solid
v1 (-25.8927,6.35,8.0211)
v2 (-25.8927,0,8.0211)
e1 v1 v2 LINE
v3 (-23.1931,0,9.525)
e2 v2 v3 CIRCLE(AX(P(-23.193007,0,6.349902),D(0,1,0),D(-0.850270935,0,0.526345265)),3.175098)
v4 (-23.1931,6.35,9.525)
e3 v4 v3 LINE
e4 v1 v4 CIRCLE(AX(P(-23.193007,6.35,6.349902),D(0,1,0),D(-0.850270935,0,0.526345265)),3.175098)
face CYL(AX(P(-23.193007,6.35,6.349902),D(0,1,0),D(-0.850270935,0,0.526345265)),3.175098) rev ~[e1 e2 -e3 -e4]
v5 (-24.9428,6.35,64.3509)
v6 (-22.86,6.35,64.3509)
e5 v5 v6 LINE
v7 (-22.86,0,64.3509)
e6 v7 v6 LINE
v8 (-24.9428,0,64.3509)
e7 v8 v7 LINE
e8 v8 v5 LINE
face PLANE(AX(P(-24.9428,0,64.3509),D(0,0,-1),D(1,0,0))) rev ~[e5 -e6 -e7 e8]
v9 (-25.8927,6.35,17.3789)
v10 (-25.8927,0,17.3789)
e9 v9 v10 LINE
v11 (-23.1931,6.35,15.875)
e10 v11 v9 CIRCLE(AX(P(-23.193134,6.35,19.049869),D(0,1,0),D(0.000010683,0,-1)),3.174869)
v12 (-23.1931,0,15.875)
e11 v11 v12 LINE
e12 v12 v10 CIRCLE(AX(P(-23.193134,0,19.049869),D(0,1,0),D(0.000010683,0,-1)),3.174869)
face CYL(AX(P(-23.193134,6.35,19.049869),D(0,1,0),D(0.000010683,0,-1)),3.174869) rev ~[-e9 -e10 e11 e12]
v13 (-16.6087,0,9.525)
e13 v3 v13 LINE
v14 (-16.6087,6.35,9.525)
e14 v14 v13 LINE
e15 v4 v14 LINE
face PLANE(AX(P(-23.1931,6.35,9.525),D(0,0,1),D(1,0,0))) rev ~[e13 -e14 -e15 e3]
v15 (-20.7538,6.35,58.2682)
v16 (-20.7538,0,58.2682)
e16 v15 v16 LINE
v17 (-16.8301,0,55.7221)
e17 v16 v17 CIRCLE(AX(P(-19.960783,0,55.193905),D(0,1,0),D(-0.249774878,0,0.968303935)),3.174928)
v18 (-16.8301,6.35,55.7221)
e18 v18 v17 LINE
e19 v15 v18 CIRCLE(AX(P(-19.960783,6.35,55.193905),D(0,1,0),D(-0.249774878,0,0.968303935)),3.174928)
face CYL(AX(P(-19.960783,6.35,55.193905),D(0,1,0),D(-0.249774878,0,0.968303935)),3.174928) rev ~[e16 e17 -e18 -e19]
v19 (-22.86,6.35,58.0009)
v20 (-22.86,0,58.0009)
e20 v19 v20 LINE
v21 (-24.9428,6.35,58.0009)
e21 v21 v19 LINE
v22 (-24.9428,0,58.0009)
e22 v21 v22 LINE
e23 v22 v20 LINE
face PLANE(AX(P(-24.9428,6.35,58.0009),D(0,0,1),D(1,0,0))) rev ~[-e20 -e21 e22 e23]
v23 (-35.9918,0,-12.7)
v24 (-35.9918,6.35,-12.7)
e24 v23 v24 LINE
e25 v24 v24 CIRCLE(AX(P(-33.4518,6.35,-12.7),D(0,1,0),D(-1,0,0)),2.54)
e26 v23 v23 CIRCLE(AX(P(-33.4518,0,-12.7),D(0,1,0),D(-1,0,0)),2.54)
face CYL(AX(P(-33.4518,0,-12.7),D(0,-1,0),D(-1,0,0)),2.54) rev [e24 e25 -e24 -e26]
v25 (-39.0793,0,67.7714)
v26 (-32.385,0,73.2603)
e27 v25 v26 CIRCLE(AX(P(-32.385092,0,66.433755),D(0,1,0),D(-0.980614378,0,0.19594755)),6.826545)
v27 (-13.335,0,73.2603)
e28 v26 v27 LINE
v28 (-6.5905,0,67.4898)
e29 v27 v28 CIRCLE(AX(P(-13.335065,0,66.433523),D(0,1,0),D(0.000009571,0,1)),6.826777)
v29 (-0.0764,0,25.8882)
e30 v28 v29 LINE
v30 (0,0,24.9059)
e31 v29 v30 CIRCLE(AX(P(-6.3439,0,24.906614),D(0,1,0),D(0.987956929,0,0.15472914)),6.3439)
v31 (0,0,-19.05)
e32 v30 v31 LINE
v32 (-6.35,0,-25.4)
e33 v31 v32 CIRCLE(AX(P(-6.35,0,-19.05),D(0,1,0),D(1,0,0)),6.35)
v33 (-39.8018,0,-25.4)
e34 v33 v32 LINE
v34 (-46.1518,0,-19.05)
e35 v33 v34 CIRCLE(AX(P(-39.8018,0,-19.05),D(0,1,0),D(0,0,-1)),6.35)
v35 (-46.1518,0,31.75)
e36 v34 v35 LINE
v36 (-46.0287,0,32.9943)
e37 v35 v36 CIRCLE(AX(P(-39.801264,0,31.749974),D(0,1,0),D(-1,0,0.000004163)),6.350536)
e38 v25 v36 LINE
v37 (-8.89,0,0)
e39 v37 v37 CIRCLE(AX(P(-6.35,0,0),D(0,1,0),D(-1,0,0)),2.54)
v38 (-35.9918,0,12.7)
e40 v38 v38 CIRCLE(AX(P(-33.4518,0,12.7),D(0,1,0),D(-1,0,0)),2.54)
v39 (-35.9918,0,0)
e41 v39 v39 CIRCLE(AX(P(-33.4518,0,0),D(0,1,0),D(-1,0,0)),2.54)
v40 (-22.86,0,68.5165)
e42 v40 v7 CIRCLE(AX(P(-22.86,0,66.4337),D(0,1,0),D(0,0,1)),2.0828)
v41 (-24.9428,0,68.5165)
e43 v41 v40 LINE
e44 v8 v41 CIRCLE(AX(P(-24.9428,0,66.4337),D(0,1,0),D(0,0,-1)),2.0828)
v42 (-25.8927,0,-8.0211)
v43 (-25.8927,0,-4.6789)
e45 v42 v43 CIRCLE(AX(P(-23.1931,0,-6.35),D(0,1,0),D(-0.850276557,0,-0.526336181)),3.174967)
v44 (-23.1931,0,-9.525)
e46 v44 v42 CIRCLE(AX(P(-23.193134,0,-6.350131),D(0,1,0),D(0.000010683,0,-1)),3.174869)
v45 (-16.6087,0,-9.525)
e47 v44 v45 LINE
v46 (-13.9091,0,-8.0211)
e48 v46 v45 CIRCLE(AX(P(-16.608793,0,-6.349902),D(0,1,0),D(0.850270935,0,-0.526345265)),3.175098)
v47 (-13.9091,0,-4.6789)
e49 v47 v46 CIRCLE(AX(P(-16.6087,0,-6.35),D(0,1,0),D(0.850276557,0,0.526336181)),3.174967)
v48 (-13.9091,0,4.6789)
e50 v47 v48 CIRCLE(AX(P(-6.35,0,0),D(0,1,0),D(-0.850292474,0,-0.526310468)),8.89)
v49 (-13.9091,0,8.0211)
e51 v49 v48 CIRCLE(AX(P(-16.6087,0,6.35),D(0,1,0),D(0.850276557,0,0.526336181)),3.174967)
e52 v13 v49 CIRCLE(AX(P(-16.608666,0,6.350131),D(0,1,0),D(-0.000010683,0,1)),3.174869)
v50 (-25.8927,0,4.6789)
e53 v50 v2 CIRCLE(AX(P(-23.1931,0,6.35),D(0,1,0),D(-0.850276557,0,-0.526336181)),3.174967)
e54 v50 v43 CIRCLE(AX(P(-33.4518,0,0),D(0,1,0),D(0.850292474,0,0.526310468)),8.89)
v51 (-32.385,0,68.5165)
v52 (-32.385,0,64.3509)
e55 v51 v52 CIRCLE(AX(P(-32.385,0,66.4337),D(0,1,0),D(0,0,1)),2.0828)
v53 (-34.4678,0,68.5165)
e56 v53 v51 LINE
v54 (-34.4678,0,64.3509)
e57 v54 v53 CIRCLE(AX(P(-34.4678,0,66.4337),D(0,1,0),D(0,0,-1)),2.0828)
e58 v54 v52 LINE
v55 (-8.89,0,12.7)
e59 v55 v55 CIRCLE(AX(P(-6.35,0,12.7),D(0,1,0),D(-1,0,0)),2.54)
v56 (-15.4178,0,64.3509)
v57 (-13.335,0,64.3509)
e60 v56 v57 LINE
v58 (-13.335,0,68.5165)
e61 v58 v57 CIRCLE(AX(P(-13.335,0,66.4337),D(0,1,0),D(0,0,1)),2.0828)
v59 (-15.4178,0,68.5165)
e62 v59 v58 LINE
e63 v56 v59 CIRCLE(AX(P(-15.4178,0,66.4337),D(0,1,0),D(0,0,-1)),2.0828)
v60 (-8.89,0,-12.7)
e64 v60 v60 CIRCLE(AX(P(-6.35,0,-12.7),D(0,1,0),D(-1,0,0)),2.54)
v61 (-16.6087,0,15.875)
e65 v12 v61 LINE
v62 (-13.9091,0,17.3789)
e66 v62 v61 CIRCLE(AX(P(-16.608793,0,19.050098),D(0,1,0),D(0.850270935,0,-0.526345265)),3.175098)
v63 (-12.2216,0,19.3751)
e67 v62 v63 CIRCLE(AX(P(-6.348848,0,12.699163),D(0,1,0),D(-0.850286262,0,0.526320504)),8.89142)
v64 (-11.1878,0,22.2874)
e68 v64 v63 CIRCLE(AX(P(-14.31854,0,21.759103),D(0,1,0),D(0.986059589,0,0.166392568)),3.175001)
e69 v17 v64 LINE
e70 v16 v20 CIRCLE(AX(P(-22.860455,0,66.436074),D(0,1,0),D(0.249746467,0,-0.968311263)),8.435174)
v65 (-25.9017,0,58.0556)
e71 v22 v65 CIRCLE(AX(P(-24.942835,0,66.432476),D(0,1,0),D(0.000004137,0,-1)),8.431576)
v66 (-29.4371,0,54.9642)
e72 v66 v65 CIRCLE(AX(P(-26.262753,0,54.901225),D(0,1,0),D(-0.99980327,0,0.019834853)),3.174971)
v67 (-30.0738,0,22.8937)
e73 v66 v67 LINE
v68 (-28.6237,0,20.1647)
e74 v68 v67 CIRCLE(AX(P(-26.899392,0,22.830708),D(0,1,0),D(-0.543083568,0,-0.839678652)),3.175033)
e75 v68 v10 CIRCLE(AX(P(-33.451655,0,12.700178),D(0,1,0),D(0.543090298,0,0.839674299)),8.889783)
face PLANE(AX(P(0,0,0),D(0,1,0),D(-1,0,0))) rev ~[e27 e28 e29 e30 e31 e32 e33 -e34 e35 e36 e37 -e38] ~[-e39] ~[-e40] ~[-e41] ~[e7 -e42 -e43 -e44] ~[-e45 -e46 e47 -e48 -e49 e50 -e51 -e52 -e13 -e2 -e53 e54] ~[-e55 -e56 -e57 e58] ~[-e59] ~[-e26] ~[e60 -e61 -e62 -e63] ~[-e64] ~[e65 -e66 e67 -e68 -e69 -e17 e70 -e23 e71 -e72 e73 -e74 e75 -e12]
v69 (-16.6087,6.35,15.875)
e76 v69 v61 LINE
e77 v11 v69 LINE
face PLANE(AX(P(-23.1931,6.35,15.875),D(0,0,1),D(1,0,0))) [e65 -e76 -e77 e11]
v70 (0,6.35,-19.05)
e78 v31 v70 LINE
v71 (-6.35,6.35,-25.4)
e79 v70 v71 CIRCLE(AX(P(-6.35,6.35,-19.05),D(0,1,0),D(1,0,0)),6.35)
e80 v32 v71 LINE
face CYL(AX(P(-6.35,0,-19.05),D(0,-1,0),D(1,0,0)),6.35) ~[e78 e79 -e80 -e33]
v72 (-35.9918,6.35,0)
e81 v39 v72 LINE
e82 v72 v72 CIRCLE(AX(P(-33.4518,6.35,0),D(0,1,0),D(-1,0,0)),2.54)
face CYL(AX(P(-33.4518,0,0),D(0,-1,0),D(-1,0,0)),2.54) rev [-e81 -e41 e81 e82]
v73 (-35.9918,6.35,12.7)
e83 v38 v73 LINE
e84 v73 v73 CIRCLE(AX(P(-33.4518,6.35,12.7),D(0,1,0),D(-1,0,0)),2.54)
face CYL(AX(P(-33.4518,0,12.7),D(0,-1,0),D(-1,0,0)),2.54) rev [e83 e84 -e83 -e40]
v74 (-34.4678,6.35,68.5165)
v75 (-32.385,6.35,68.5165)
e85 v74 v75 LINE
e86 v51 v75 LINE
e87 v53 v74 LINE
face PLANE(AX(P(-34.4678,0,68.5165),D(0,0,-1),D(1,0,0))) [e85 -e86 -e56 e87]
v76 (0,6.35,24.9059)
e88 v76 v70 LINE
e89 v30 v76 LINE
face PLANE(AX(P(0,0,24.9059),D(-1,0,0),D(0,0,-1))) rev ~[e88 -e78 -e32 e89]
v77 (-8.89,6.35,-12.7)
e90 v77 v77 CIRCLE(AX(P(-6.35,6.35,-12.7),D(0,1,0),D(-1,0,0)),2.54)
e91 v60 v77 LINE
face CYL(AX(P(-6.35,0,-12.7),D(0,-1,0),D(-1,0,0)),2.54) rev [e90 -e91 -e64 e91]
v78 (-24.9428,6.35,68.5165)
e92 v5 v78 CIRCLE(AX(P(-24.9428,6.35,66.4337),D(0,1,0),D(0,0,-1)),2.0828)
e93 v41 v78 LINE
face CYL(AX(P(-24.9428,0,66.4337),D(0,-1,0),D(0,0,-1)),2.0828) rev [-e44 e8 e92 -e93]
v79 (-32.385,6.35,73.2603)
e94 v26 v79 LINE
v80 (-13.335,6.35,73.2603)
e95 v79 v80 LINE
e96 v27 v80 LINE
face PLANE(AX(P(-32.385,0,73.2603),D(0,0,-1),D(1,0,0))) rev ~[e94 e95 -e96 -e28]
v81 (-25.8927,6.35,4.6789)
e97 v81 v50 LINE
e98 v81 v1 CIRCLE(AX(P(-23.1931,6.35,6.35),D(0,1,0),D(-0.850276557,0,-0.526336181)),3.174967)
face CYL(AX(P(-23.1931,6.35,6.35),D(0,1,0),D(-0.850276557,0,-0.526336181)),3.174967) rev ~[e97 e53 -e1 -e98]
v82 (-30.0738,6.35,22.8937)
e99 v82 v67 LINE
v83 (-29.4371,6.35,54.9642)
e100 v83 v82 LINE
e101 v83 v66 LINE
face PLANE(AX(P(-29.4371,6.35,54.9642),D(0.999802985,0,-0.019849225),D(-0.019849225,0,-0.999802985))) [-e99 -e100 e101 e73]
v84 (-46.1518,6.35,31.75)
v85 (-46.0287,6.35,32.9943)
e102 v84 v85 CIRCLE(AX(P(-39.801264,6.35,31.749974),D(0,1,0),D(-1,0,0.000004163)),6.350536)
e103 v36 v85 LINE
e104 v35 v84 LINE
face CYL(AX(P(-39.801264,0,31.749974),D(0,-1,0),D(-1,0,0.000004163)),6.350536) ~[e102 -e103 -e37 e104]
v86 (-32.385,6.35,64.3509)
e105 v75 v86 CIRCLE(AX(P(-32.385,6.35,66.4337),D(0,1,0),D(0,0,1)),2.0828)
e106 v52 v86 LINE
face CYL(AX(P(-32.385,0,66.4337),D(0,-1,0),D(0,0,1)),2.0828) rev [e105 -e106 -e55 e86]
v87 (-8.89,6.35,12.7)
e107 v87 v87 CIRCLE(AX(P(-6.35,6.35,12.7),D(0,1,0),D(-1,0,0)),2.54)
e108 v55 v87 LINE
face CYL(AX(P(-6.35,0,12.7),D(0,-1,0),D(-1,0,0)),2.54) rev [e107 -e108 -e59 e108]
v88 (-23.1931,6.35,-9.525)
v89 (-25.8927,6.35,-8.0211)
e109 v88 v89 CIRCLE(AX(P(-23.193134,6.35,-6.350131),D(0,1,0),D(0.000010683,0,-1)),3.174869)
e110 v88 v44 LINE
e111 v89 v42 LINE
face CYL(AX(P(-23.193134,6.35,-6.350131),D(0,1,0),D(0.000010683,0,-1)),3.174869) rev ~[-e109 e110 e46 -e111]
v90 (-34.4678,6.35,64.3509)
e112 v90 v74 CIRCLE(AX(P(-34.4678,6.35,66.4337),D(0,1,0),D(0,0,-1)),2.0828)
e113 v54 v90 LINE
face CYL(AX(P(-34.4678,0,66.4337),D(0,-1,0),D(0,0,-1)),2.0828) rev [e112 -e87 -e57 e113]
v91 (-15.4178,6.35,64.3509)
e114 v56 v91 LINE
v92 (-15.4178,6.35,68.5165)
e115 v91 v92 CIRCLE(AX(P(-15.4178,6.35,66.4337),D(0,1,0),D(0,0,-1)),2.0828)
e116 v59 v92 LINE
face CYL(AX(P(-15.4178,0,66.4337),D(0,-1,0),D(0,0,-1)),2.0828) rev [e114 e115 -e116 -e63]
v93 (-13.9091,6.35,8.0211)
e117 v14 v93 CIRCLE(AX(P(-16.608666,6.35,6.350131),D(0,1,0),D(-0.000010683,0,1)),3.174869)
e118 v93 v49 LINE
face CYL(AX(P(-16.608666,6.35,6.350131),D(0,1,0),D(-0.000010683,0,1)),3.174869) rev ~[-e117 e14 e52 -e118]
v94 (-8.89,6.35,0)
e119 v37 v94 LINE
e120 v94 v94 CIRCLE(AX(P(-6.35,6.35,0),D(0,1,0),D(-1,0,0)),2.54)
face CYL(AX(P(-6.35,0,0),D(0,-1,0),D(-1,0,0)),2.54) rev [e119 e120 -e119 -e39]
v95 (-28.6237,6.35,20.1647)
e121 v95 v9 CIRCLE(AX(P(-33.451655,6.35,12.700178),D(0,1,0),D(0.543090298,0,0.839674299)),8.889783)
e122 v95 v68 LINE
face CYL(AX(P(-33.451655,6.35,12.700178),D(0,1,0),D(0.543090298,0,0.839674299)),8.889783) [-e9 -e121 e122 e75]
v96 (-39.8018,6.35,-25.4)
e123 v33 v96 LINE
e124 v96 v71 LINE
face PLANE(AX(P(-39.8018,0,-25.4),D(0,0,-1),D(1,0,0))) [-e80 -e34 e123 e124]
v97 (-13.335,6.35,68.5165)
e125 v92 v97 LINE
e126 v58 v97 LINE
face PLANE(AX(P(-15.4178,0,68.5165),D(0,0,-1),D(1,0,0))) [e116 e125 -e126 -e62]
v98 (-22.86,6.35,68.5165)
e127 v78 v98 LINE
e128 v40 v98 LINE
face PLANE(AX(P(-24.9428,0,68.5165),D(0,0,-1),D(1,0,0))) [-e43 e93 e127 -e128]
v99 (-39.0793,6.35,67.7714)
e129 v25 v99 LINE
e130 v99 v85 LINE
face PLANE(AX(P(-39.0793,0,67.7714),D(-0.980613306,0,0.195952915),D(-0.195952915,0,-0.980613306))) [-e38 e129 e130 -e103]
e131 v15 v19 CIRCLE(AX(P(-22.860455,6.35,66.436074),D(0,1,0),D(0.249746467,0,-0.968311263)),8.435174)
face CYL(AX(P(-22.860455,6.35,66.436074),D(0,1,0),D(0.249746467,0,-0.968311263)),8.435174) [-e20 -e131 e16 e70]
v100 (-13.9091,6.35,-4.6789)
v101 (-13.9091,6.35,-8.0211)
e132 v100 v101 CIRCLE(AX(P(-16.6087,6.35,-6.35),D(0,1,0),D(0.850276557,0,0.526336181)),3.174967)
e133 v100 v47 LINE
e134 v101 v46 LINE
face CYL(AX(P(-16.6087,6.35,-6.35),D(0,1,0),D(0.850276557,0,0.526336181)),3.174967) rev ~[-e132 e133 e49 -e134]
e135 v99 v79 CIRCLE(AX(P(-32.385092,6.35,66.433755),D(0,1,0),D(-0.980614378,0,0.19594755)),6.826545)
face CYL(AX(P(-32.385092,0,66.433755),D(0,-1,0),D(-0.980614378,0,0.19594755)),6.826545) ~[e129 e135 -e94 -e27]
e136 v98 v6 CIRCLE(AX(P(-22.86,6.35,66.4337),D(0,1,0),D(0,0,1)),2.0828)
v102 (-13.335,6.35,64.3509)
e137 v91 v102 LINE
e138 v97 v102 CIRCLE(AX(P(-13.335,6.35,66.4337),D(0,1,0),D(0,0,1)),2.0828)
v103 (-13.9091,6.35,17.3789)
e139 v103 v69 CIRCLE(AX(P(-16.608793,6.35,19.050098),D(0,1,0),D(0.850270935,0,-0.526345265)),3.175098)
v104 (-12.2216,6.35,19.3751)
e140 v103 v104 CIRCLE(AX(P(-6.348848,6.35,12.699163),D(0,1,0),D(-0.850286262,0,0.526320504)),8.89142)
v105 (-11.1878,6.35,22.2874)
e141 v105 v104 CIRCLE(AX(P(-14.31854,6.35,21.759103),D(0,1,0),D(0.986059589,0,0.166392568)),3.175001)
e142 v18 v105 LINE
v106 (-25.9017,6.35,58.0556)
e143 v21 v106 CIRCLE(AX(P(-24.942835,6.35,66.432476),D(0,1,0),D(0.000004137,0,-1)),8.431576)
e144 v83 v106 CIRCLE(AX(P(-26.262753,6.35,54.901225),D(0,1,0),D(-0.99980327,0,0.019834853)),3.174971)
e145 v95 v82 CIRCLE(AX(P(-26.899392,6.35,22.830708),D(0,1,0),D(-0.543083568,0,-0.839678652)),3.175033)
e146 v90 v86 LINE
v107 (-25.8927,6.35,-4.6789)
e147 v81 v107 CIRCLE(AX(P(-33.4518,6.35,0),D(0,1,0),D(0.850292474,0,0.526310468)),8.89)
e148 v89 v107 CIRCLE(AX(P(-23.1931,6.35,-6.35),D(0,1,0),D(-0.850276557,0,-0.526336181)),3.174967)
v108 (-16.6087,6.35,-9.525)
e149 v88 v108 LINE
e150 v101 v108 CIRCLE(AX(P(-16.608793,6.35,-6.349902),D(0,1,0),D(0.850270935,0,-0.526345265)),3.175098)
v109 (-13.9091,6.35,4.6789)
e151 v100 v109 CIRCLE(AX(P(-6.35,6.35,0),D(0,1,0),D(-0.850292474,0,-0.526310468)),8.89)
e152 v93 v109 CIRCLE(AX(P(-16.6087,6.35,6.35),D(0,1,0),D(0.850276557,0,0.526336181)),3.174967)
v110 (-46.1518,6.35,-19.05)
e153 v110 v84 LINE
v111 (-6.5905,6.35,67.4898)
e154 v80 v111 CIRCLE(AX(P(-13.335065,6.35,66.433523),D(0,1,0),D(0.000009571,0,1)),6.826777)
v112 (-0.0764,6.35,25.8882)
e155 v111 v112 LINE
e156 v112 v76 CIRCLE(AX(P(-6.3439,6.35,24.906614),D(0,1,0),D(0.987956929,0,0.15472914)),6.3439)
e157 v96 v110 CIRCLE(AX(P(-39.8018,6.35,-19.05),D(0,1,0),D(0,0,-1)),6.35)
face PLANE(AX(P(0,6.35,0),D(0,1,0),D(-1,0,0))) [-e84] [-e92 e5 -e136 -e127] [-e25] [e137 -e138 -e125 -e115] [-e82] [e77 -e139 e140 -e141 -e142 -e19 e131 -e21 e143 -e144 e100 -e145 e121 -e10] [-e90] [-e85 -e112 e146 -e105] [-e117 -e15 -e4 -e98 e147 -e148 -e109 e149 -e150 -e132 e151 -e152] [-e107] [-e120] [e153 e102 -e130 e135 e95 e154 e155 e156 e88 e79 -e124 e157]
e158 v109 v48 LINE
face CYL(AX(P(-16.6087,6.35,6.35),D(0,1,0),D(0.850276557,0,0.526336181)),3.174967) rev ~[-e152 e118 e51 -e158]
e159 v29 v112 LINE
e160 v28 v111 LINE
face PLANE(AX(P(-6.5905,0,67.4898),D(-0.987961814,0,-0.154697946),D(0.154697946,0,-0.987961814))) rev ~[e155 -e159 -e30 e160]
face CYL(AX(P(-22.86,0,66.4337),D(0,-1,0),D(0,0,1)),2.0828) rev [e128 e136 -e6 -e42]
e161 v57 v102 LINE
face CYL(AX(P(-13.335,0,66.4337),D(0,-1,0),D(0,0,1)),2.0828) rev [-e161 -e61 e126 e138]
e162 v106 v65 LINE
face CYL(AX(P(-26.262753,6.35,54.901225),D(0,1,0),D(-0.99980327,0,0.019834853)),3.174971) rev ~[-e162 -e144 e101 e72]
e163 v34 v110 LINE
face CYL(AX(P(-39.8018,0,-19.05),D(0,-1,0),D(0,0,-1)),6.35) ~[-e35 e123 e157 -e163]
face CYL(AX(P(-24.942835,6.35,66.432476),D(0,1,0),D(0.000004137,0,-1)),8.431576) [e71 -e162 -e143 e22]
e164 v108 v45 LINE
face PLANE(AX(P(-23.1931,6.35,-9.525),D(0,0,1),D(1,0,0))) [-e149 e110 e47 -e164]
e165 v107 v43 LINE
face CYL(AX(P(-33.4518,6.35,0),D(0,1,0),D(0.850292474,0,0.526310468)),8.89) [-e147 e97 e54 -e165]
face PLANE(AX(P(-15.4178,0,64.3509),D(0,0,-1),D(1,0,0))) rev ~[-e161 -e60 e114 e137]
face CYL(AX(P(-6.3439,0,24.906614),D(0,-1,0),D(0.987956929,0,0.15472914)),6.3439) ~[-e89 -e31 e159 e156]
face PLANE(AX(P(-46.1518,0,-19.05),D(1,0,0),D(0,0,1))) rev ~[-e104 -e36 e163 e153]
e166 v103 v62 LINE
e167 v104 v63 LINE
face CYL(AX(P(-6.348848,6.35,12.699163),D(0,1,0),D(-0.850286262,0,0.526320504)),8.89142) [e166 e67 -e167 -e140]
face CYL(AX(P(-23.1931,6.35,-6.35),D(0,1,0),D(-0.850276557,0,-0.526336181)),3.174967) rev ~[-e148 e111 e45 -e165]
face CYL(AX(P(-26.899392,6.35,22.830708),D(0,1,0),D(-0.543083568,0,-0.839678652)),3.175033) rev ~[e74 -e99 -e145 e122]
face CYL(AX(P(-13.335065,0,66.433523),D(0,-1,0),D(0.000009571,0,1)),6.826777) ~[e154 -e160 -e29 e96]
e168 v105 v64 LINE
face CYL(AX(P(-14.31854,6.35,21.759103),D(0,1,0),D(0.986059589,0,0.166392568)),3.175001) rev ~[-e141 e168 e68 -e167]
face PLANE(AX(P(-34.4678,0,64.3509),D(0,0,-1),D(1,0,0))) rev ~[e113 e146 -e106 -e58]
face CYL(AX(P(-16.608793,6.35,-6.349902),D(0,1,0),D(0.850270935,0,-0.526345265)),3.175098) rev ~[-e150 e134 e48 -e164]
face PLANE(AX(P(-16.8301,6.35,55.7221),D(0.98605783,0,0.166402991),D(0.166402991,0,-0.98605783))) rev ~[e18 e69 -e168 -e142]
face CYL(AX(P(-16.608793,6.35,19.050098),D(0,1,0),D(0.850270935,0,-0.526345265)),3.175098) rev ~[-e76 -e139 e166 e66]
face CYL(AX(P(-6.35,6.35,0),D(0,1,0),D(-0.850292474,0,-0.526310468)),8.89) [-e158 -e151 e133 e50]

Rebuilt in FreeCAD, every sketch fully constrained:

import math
import FreeCAD as App
import Part
import Sketcher
Q = App.Units.Quantity

doc = App.newDocument("Part")
body = doc.addObject("PartDesign::Body", "Body")

# Sketch on XZ plane
sketch1 = doc.addObject("Sketcher::SketchObject", "Sketch")
body.addObject(sketch1)
sketch1.AttachmentSupport = (doc.XZ_Plane, [""])
sketch1.MapMode = "FlatFace"
sketch1.addGeometry([
    Part.ArcOfCircle(Part.Circle(App.Vector(-32.385, 66.4337, 0), App.Vector(0, 0, 1), 6.8266), math.radians(90), math.radians(168.699614)),  # 0
    Part.LineSegment(App.Vector(-32.385, 73.2603, 0), App.Vector(-13.335, 73.2603, 0)),  # 1
    Part.ArcOfCircle(Part.Circle(App.Vector(-13.335, 66.4337, 0), App.Vector(0, 0, 1), 6.8266), math.radians(8.899498), math.radians(90)),  # 2
    Part.LineSegment(App.Vector(-6.5905, 67.4898, 0), App.Vector(-0.0764, 25.8882, 0)),  # 3
    Part.ArcOfCircle(Part.Circle(App.Vector(-6.3439, 24.906614, 0), App.Vector(0, 0, 1), 6.3439), math.radians(-0.006447), math.radians(8.901088)),  # 4
    Part.LineSegment(App.Vector(0, 24.9059, 0), App.Vector(0, -19.05, 0)),  # 5
    Part.ArcOfCircle(Part.Circle(App.Vector(-6.35, -19.05, 0), App.Vector(0, 0, 1), 6.35), math.radians(-90), math.radians(0)),  # 6
    Part.LineSegment(App.Vector(-6.35, -25.4, 0), App.Vector(-39.8018, -25.4, 0)),  # 7
    Part.ArcOfCircle(Part.Circle(App.Vector(-39.8018, -19.05, 0), App.Vector(0, 0, 1), 6.35), math.radians(180), math.radians(270)),  # 8
    Part.LineSegment(App.Vector(-46.1518, -19.05, 0), App.Vector(-46.1518, 31.75, 0)),  # 9
    Part.ArcOfCircle(Part.Circle(App.Vector(-39.8018, 31.75, 0), App.Vector(0, 0, 1), 6.35), math.radians(168.699623), math.radians(180)),  # 10
    Part.LineSegment(App.Vector(-46.0287, 32.9943, 0), App.Vector(-39.0793, 67.7714, 0)),  # 11
    Part.Circle(App.Vector(-6.35, -12.7, 0), App.Vector(0, 0, 1), 2.54),  # 12
    Part.Circle(App.Vector(-6.35, 0, 0), App.Vector(0, 0, 1), 2.54),  # 13
    Part.Circle(App.Vector(-6.35, 12.7, 0), App.Vector(0, 0, 1), 2.54),  # 14
    Part.Circle(App.Vector(-33.4518, -12.7, 0), App.Vector(0, 0, 1), 2.54),  # 15
    Part.Circle(App.Vector(-33.4518, 0, 0), App.Vector(0, 0, 1), 2.54),  # 16
    Part.Circle(App.Vector(-33.4518, 12.7, 0), App.Vector(0, 0, 1), 2.54),  # 17
    Part.ArcOfCircle(Part.Circle(App.Vector(-15.4178, 66.4337, 0), App.Vector(0, 0, 1), 2.0828), math.radians(90), math.radians(270)),  # 18
    Part.LineSegment(App.Vector(-15.4178, 64.3509, 0), App.Vector(-13.335, 64.3509, 0)),  # 19
    Part.ArcOfCircle(Part.Circle(App.Vector(-13.335, 66.4337, 0), App.Vector(0, 0, 1), 2.0828), math.radians(-90), math.radians(90)),  # 20
    Part.LineSegment(App.Vector(-13.335, 68.5165, 0), App.Vector(-15.4178, 68.5165, 0)),  # 21
    Part.ArcOfCircle(Part.Circle(App.Vector(-24.9428, 66.4337, 0), App.Vector(0, 0, 1), 2.0828), math.radians(90), math.radians(270)),  # 22
    Part.LineSegment(App.Vector(-24.9428, 64.3509, 0), App.Vector(-22.86, 64.3509, 0)),  # 23
    Part.ArcOfCircle(Part.Circle(App.Vector(-22.86, 66.4337, 0), App.Vector(0, 0, 1), 2.0828), math.radians(-90), math.radians(90)),  # 24
    Part.LineSegment(App.Vector(-22.86, 68.5165, 0), App.Vector(-24.9428, 68.5165, 0)),  # 25
    Part.ArcOfCircle(Part.Circle(App.Vector(-34.4678, 66.4337, 0), App.Vector(0, 0, 1), 2.0828), math.radians(90), math.radians(270)),  # 26
    Part.LineSegment(App.Vector(-34.4678, 64.3509, 0), App.Vector(-32.385, 64.3509, 0)),  # 27
    Part.ArcOfCircle(Part.Circle(App.Vector(-32.385, 66.4337, 0), App.Vector(0, 0, 1), 2.0828), math.radians(-90), math.radians(90)),  # 28
    Part.LineSegment(App.Vector(-32.385, 68.5165, 0), App.Vector(-34.4678, 68.5165, 0)),  # 29
], False)
sketch1.addConstraint([
    Sketcher.Constraint("Tangent", 0, 1, 1, 1),
    Sketcher.Constraint("Tangent", 1, 2, 2, 2),
    Sketcher.Constraint("Tangent", 2, 1, 3, 1),
    Sketcher.Constraint("Tangent", 3, 2, 4, 2),
    Sketcher.Constraint("Tangent", 4, 1, 5, 1),
    Sketcher.Constraint("Tangent", 5, 2, 6, 2),
    Sketcher.Constraint("Tangent", 6, 1, 7, 1),
    Sketcher.Constraint("Tangent", 7, 2, 8, 2),
    Sketcher.Constraint("Tangent", 8, 1, 9, 1),
    Sketcher.Constraint("Tangent", 9, 2, 10, 2),
    Sketcher.Constraint("Tangent", 10, 1, 11, 1),
    Sketcher.Constraint("Tangent", 11, 2, 0, 2),
    Sketcher.Constraint("Tangent", 18, 2, 19, 1),
    Sketcher.Constraint("Tangent", 19, 2, 20, 1),
    Sketcher.Constraint("Tangent", 20, 2, 21, 1),
    Sketcher.Constraint("Tangent", 21, 2, 18, 1),
    Sketcher.Constraint("Tangent", 22, 2, 23, 1),
    Sketcher.Constraint("Tangent", 23, 2, 24, 1),
    Sketcher.Constraint("Tangent", 24, 2, 25, 1),
    Sketcher.Constraint("Tangent", 25, 2, 22, 1),
    Sketcher.Constraint("Tangent", 26, 2, 27, 1),
    Sketcher.Constraint("Tangent", 27, 2, 28, 1),
    Sketcher.Constraint("Tangent", 28, 2, 29, 1),
    Sketcher.Constraint("Tangent", 29, 2, 26, 1),
    Sketcher.Constraint("Horizontal", 1),
    Sketcher.Constraint("Vertical", 5),
    Sketcher.Constraint("Horizontal", 7),
    Sketcher.Constraint("Vertical", 9),
    Sketcher.Constraint("Horizontal", 19),
    Sketcher.Constraint("Horizontal", 21),
    Sketcher.Constraint("Horizontal", 23),
    Sketcher.Constraint("Horizontal", 25),
    Sketcher.Constraint("Horizontal", 27),
    Sketcher.Constraint("Horizontal", 29),
    Sketcher.Constraint("Coincident", 20, 3, 2, 3),
    Sketcher.Constraint("Coincident", 28, 3, 0, 3),
    Sketcher.Constraint("Equal", 0, 2),
    Sketcher.Constraint("Equal", 6, 8),
    Sketcher.Constraint("Equal", 8, 10),
    Sketcher.Constraint("Equal", 12, 13),
    Sketcher.Constraint("Equal", 13, 14),
    Sketcher.Constraint("Equal", 14, 15),
    Sketcher.Constraint("Equal", 15, 16),
    Sketcher.Constraint("Equal", 16, 17),
    Sketcher.Constraint("Equal", 20, 22),
    Sketcher.Constraint("Equal", 24, 26),
    Sketcher.Constraint("Symmetric", 12, 3, 14, 3, -1),
    Sketcher.Constraint("Symmetric", 15, 3, 17, 3, -1),
    Sketcher.Constraint("PointOnObject", 13, 3, -1),
    Sketcher.Constraint("PointOnObject", 16, 3, -1),
    Sketcher.Constraint("PointOnObject", 4, 1, -2),
    Sketcher.Constraint("Horizontal", 12, 3, 15, 3),
    Sketcher.Constraint("Horizontal", 20, 3, 22, 3),
    Sketcher.Constraint("Vertical", 6, 3, 12, 3),
    Sketcher.Constraint("Vertical", 12, 3, 13, 3),
    Sketcher.Constraint("Vertical", 15, 3, 16, 3),
    Sketcher.Constraint("Equal", 21, 23),
    Sketcher.Constraint("Equal", 25, 27),
    Sketcher.Constraint("Diameter", 12, Q("0.2 in")),
    Sketcher.Constraint("DistanceY", 9, 1, 9, 2, Q("2 in")),
    Sketcher.Constraint("Radius", 6, Q("0.25 in")),
    Sketcher.Constraint("DistanceY", 6, 1, -1, 1, Q("1 in")),
    Sketcher.Constraint("Radius", 18, Q("0.082 in")),
    Sketcher.Constraint("DistanceY", 12, 3, 14, 3, Q("1 in")),
    Sketcher.Constraint("DistanceX", 8, 1, 15, 3, Q("0.5 in")),
    Sketcher.Constraint("DistanceX", 19, 1, 19, 2, Q("0.082 in")),
    Sketcher.Constraint("Radius", 0, 6.8266),
    Sketcher.Constraint("DistanceX", 2, 3, -1, 1, Q("0.525 in")),
    Sketcher.Constraint("DistanceX", 15, 3, 12, 3, Q("1.067 in")),
    Sketcher.Constraint("DistanceX", 22, 3, 18, 3, Q("0.375 in")),
    Sketcher.Constraint("DistanceX", 0, 3, 24, 3, Q("0.375 in")),
    Sketcher.Constraint("Angle", 3, Q("-81.1007 deg")),
    Sketcher.Constraint("Angle", 11, Q("78.6996 deg")),
    Sketcher.Constraint("Radius", 4, 6.344),
])
pad1 = doc.addObject("PartDesign::Pad", "Pad")
body.addObject(pad1)
pad1.Profile = sketch1
pad1.Length = Q("0.25 in")
pad1.Reversed = True

# Sketch on XZ plane
sketch2 = doc.addObject("Sketcher::SketchObject", "Sketch001")
body.addObject(sketch2)
sketch2.AttachmentSupport = (doc.XZ_Plane, [""])
sketch2.MapMode = "FlatFace"
sketch2.AttachmentOffset = App.Placement(App.Vector(0, 0, -0.25 * 25.4), App.Rotation())
sketch2.addGeometry([
    Part.LineSegment(App.Vector(-30.0738, 22.8937, 0), App.Vector(-29.4371, 54.9642, 0)),  # 0
    Part.ArcOfCircle(Part.Circle(App.Vector(-26.2627, 54.9012, 0), App.Vector(0, 0, 1), 3.175025), math.radians(83.471285), math.radians(178.863042)),  # 1
    Part.ArcOfCircle(Part.Circle(App.Vector(-24.942835, 66.432476, 0), App.Vector(0, 0, 1), 8.431576), math.radians(-96.529982), math.radians(-89.999763)),  # 2
    Part.LineSegment(App.Vector(-24.9428, 58.0009, 0), App.Vector(-22.86, 58.0009, 0)),  # 3
    Part.ArcOfCircle(Part.Circle(App.Vector(-22.860455, 66.436074, 0), App.Vector(0, 0, 1), 8.435174), math.radians(-89.99691), math.radians(-75.53749)),  # 4
    Part.ArcOfCircle(Part.Circle(App.Vector(-19.9608, 55.1938, 0), App.Vector(0, 0, 1), 3.175025), math.radians(9.578323), math.radians(104.463418)),  # 5
    Part.LineSegment(App.Vector(-16.8301, 55.7221, 0), App.Vector(-11.1878, 22.2874, 0)),  # 6
    Part.ArcOfCircle(Part.Circle(App.Vector(-14.3185, 21.7591, 0), App.Vector(0, 0, 1), 3.174962), math.radians(-48.666041), math.radians(9.578323)),  # 7
    Part.ArcOfCircle(Part.Circle(App.Vector(-6.348848, 12.699163, 0), App.Vector(0, 0, 1), 8.89142), math.radians(131.337754), math.radians(148.242818)),  # 8
    Part.ArcOfCircle(Part.Circle(App.Vector(-16.6087, 19.05, 0), App.Vector(0, 0, 1), 3.174967), math.radians(-90), math.radians(-31.758238)),  # 9
    Part.LineSegment(App.Vector(-16.6087, 15.875, 0), App.Vector(-23.1931, 15.875, 0)),  # 10
    Part.ArcOfCircle(Part.Circle(App.Vector(-23.1931, 19.05, 0), App.Vector(0, 0, 1), 3.175), math.radians(-148.241762), math.radians(-90)),  # 11
    Part.ArcOfCircle(Part.Circle(App.Vector(-33.4518, 12.7, 0), App.Vector(0, 0, 1), 8.89), math.radians(31.756505), math.radians(57.105579)),  # 12
    Part.ArcOfCircle(Part.Circle(App.Vector(-26.8994, 22.8307, 0), App.Vector(0, 0, 1), 3.175022), math.radians(178.863042), math.radians(237.106254)),  # 13
    Part.ArcOfCircle(Part.Circle(App.Vector(-23.1931, 6.35, 0), App.Vector(0, 0, 1), 3.174967), math.radians(148.241762), math.radians(211.758238)),  # 14
    Part.ArcOfCircle(Part.Circle(App.Vector(-23.1931, 6.35, 0), App.Vector(0, 0, 1), 3.174967), math.radians(90), math.radians(148.241762)),  # 15
    Part.LineSegment(App.Vector(-23.1931, 9.525, 0), App.Vector(-16.6087, 9.525, 0)),  # 16
    Part.ArcOfCircle(Part.Circle(App.Vector(-16.6087, 6.35, 0), App.Vector(0, 0, 1), 3.174967), math.radians(31.758238), math.radians(90)),  # 17
    Part.ArcOfCircle(Part.Circle(App.Vector(-16.6087, 6.35, 0), App.Vector(0, 0, 1), 3.174967), math.radians(-31.758238), math.radians(31.758238)),  # 18
    Part.ArcOfCircle(Part.Circle(App.Vector(-6.35, 0, 0), App.Vector(0, 0, 1), 8.89), math.radians(148.243495), math.radians(211.756505)),  # 19
    Part.ArcOfCircle(Part.Circle(App.Vector(-16.6087, -6.35, 0), App.Vector(0, 0, 1), 3.174967), math.radians(-31.758238), math.radians(31.758238)),  # 20
    Part.ArcOfCircle(Part.Circle(App.Vector(-16.6087, -6.35, 0), App.Vector(0, 0, 1), 3.174967), math.radians(-90), math.radians(-31.758238)),  # 21
    Part.LineSegment(App.Vector(-16.6087, -9.525, 0), App.Vector(-23.1931, -9.525, 0)),  # 22
    Part.ArcOfCircle(Part.Circle(App.Vector(-23.1931, -6.35, 0), App.Vector(0, 0, 1), 3.174967), math.radians(-148.241762), math.radians(-90)),  # 23
    Part.ArcOfCircle(Part.Circle(App.Vector(-23.1931, -6.35, 0), App.Vector(0, 0, 1), 3.174967), math.radians(148.241762), math.radians(211.758238)),  # 24
    Part.ArcOfCircle(Part.Circle(App.Vector(-33.4518, 0, 0), App.Vector(0, 0, 1), 8.89), math.radians(-31.756505), math.radians(31.756505)),  # 25
], False)
sketch2.addConstraint([
    Sketcher.Constraint("Tangent", 0, 2, 1, 2),
    Sketcher.Constraint("Tangent", 1, 1, 2, 1),
    Sketcher.Constraint("Tangent", 2, 2, 3, 1),
    Sketcher.Constraint("Tangent", 3, 2, 4, 1),
    Sketcher.Constraint("Tangent", 4, 2, 5, 2),
    Sketcher.Constraint("Tangent", 5, 1, 6, 1),
    Sketcher.Constraint("Tangent", 6, 2, 7, 2),
    Sketcher.Constraint("Tangent", 7, 1, 8, 1),
    Sketcher.Constraint("Tangent", 8, 2, 9, 2),
    Sketcher.Constraint("Tangent", 9, 1, 10, 1),
    Sketcher.Constraint("Tangent", 10, 2, 11, 2),
    Sketcher.Constraint("Tangent", 11, 1, 12, 1),
    Sketcher.Constraint("Tangent", 12, 2, 13, 2),
    Sketcher.Constraint("Tangent", 13, 1, 0, 1),
    Sketcher.Constraint("Tangent", 14, 1, 15, 2),
    Sketcher.Constraint("Tangent", 15, 1, 16, 1),
    Sketcher.Constraint("Tangent", 16, 2, 17, 2),
    Sketcher.Constraint("Tangent", 17, 1, 18, 2),
    Sketcher.Constraint("Tangent", 18, 1, 19, 1),
    Sketcher.Constraint("Tangent", 19, 2, 20, 2),
    Sketcher.Constraint("Tangent", 20, 1, 21, 2),
    Sketcher.Constraint("Tangent", 21, 1, 22, 1),
    Sketcher.Constraint("Tangent", 22, 2, 23, 2),
    Sketcher.Constraint("Tangent", 23, 1, 24, 2),
    Sketcher.Constraint("Tangent", 24, 1, 25, 1),
    Sketcher.Constraint("Tangent", 25, 2, 14, 2),
    Sketcher.Constraint("Horizontal", 3),
    Sketcher.Constraint("Horizontal", 10),
    Sketcher.Constraint("Horizontal", 16),
    Sketcher.Constraint("Horizontal", 22),
    Sketcher.Constraint("Equal", 1, 5),
    Sketcher.Constraint("Equal", 5, 7),
    Sketcher.Constraint("Equal", 7, 9),
    Sketcher.Constraint("Equal", 9, 11),
    Sketcher.Constraint("Equal", 11, 13),
    Sketcher.Constraint("Equal", 13, 14),
    Sketcher.Constraint("Equal", 14, 15),
    Sketcher.Constraint("Equal", 15, 17),
    Sketcher.Constraint("Equal", 17, 18),
    Sketcher.Constraint("Equal", 12, 19),
    Sketcher.Constraint("Equal", 18, 20),
    Sketcher.Constraint("Equal", 20, 21),
    Sketcher.Constraint("Equal", 21, 23),
    Sketcher.Constraint("Equal", 23, 24),
    Sketcher.Constraint("Equal", 19, 25),
    Sketcher.Constraint("Symmetric", 17, 3, 20, 3, -1),
    Sketcher.Constraint("Symmetric", 14, 1, 23, 1, -1),
    Sketcher.Constraint("Horizontal", 8, 2, 11, 1),
    Sketcher.Constraint("Horizontal", 14, 1, 17, 1),
    Sketcher.Constraint("Horizontal", 20, 1, 23, 1),
    Sketcher.Constraint("Vertical", 11, 3, 14, 3),
    Sketcher.Constraint("Vertical", 9, 3, 17, 3),
    Sketcher.Constraint("Vertical", 12, 3, 25, 3),
    Sketcher.Constraint("Vertical", 11, 1, 14, 1),
    Sketcher.Constraint("Radius", 1, Q("0.125 in")),
    Sketcher.Constraint("DistanceY", -1, 1, 14, 3, Q("0.25 in")),
    Sketcher.Constraint("DistanceX", 19, 3, -1, 1, Q("0.25 in")),
    Sketcher.Constraint("Radius", 12, Q("0.35 in")),
    Sketcher.Constraint("DistanceY", 14, 3, 12, 3, Q("0.25 in")),
    Sketcher.Constraint("DistanceX", 3, 2, -1, 1, Q("0.9 in")),
    Sketcher.Constraint("Radius", 4, Q("0.3321 in")),
    Sketcher.Constraint("DistanceX", 3, 1, 3, 2, Q("0.082 in")),
    Sketcher.Constraint("Radius", 2, 8.4316),
    Sketcher.Constraint("Radius", 8, 8.8914),
    Sketcher.Constraint("DistanceX", 12, 3, -1, 1, Q("1.317 in")),
    Sketcher.Constraint("DistanceX", 13, 1, -1, 1, Q("1.184 in")),
    Sketcher.Constraint("DistanceX", 1, 3, 8, 3, Q("0.784 in")),
    Sketcher.Constraint("DistanceY", -1, 1, 4, 3, Q("2.6156 in")),
    Sketcher.Constraint("DistanceX", 5, 1, -1, 1, Q("0.6626 in")),
    Sketcher.Constraint("DistanceY", -1, 1, 7, 1, Q("0.7628 in")),
])
pocket1 = doc.addObject("PartDesign::Pocket", "Pocket")
body.addObject(pocket1)
pocket1.Profile = sketch2
pocket1.Length = Q("1 in")
pocket1.Reversed = True

doc.recompute()
